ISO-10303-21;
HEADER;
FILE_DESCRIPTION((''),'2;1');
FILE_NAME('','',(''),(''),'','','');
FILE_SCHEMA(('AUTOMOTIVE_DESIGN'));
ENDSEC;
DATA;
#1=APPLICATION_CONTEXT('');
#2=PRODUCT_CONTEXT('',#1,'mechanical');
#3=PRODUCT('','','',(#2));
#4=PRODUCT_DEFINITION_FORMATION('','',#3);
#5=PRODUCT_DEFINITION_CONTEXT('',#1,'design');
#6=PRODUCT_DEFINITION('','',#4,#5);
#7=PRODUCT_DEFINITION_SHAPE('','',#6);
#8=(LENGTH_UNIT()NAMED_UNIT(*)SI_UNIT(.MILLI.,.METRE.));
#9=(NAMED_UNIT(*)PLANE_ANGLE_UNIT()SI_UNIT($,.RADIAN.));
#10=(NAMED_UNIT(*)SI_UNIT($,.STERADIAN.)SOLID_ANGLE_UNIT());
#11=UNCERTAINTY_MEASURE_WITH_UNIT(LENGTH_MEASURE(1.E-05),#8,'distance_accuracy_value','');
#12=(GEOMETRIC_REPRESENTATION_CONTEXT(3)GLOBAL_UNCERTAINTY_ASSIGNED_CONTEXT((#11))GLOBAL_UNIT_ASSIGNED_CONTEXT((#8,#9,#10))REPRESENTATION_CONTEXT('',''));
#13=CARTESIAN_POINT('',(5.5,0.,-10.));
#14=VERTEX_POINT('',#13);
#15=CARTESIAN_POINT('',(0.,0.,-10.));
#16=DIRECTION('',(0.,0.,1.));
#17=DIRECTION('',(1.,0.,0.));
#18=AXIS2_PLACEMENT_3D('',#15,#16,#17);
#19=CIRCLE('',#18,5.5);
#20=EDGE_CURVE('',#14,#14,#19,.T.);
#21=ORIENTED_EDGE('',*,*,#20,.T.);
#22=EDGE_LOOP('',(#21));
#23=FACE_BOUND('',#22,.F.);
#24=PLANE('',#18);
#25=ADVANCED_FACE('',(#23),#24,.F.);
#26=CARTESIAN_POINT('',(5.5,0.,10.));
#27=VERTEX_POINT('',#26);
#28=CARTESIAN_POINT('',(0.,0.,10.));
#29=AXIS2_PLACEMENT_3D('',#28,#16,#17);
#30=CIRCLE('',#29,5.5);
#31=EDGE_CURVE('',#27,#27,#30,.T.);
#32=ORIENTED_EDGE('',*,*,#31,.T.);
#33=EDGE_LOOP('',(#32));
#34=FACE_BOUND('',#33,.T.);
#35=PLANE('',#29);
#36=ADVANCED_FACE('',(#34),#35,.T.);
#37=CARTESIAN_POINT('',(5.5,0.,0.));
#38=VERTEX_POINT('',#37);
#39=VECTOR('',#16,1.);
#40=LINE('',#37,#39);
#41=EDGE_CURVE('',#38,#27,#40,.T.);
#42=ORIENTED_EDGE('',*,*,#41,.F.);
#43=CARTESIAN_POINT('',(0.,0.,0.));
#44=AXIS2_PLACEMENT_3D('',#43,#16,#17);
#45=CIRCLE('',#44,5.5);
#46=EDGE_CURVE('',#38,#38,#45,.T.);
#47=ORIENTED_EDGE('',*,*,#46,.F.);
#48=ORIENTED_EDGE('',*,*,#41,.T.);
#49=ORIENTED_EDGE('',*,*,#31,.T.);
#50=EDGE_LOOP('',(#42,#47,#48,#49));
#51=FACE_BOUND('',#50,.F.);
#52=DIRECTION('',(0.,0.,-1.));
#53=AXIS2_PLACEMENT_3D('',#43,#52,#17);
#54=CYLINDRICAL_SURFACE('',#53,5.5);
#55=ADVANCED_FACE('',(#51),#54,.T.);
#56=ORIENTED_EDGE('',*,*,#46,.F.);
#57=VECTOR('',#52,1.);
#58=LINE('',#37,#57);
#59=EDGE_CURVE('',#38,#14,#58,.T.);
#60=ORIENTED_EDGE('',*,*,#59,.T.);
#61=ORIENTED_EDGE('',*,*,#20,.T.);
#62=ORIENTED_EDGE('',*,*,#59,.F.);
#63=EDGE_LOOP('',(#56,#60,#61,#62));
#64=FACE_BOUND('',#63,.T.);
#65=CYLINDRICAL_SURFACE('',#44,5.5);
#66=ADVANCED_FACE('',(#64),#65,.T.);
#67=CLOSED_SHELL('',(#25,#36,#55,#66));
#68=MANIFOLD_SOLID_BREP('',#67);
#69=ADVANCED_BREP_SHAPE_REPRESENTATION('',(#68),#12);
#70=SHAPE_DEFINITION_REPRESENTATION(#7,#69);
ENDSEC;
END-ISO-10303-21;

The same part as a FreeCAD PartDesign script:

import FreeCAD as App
import Part
import Sketcher

V = App.Vector
Q = App.Units.Quantity

doc = App.newDocument("Part")
body = doc.addObject("PartDesign::Body", "Body")

sketch1 = body.newObject("Sketcher::SketchObject", "Sketch")
sketch1.AttachmentSupport = (doc.getObject("XY_Plane"), [""])
sketch1.MapMode = "FlatFace"
sketch1.addGeometry(Part.Circle(V(0, 0, 0), V(0, 0, 1), 6), False)
sketch1.addConstraint([
    Sketcher.Constraint("Coincident", 0, 3, -1, 1),
    Sketcher.Constraint("Diameter", 0, Q("11 mm")),
])
pad1 = body.newObject("PartDesign::Pad", "Pad")
pad1.Profile = sketch1
pad1.Length = 20
pad1.Midplane = True

doc.recompute()
